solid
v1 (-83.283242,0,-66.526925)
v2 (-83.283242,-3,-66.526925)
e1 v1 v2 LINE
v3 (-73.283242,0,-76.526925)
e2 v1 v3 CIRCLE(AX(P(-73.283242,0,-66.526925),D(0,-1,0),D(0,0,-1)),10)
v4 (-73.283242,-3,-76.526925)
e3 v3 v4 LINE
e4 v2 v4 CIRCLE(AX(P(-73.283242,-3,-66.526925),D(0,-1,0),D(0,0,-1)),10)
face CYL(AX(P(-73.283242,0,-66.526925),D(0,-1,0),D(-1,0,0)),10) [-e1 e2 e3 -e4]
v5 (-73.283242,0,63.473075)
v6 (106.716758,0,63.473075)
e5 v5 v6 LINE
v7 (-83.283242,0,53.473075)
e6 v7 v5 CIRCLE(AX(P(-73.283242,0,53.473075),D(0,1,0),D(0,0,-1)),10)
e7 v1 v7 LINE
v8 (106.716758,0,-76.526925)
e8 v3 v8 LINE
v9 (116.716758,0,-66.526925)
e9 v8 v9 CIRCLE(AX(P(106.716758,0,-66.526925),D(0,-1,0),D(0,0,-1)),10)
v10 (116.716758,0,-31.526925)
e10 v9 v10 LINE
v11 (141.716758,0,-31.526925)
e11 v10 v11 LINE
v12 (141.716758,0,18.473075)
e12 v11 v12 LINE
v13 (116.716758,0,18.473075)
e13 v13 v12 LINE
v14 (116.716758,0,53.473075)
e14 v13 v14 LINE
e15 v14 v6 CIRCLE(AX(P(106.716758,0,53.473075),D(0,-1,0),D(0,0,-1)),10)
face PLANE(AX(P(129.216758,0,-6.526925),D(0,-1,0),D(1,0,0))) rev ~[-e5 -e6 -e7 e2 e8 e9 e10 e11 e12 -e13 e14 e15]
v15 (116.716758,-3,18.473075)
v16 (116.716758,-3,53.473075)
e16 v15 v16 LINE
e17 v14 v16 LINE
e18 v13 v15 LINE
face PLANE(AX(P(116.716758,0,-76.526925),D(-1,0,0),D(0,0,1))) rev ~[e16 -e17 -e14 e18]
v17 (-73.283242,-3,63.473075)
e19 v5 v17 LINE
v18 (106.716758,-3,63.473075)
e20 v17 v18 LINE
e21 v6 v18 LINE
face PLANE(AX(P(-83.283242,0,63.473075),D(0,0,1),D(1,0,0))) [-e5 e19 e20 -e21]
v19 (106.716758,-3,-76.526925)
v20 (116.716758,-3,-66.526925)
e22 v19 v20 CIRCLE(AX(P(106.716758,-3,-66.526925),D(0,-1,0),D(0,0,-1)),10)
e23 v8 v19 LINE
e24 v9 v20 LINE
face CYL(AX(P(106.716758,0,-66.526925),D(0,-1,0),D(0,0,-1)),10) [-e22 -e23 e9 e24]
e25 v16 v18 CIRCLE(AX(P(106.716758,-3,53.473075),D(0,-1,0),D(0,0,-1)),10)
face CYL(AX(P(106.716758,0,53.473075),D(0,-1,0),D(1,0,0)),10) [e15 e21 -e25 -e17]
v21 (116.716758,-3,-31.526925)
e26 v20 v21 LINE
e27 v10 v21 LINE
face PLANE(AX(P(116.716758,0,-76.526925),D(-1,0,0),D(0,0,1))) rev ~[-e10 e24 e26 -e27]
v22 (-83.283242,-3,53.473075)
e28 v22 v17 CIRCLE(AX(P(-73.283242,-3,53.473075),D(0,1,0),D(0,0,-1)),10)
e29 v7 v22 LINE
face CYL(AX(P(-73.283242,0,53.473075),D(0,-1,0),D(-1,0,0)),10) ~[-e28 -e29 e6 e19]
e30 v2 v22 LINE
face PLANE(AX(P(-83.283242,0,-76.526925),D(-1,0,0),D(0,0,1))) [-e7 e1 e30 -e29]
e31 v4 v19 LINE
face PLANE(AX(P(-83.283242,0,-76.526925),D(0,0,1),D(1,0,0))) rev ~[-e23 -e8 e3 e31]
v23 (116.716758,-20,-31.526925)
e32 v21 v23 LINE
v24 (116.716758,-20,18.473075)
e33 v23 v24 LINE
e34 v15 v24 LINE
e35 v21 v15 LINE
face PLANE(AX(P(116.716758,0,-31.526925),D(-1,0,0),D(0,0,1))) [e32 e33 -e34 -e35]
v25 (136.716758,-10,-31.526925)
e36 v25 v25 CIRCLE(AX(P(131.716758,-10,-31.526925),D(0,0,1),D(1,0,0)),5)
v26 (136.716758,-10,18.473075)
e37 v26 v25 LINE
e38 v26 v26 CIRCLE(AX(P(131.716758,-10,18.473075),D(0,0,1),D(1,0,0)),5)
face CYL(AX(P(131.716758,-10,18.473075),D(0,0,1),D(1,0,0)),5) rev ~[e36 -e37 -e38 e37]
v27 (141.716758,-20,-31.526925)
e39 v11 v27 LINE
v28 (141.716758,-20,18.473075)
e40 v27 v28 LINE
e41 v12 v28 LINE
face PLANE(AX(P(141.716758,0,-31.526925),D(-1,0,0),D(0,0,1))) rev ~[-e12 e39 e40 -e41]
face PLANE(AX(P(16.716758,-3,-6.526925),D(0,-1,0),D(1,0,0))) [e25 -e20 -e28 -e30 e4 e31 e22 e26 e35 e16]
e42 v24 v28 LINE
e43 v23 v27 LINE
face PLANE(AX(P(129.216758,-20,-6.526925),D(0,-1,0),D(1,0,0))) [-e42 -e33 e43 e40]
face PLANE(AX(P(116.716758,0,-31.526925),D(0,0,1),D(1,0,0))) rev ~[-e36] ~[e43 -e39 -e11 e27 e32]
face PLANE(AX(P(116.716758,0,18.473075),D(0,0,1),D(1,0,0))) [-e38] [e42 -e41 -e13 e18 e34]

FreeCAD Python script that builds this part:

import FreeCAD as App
import Part
import Sketcher
from FreeCAD import Vector
Q = App.Units.Quantity


def edges_at(feature, points):
    """Names of the edges that pass closest to the given points."""
    edges = feature.Shape.Edges
    near = lambda p: min(range(len(edges)), key=lambda i: edges[i].distToShape(Part.Vertex(*p))[0])
    return sorted({f"Edge{near(p) + 1}" for p in points})

doc = App.newDocument("Part")
body = doc.addObject("PartDesign::Body", "Body")

# Sketch on XZ plane
sketch1 = body.newObject("Sketcher::SketchObject", "Sketch")
sketch1.AttachmentSupport = (doc.getObject("XZ_Plane"), [""])
sketch1.MapMode = "FlatFace"
sketch1.addGeometry(Part.LineSegment(Vector(-83, 63, 0), Vector(-83, -77, 0)), False)
sketch1.addGeometry(Part.LineSegment(Vector(-83, -77, 0), Vector(117, -77, 0)), False)
sketch1.addGeometry(Part.LineSegment(Vector(117, -77, 0), Vector(117, 63, 0)), False)
sketch1.addGeometry(Part.LineSegment(Vector(117, 63, 0), Vector(-83, 63, 0)), False)
sketch1.addConstraint(Sketcher.Constraint("Coincident", 0, 2, 1, 1))
sketch1.addConstraint(Sketcher.Constraint("Coincident", 1, 2, 2, 1))
sketch1.addConstraint(Sketcher.Constraint("Coincident", 2, 2, 3, 1))
sketch1.addConstraint(Sketcher.Constraint("Coincident", 3, 2, 0, 1))
sketch1.addConstraint(Sketcher.Constraint("Vertical", 0))
sketch1.addConstraint(Sketcher.Constraint("Horizontal", 1))
sketch1.addConstraint(Sketcher.Constraint("Vertical", 2))
sketch1.addConstraint(Sketcher.Constraint("Horizontal", 3))
sketch1.addConstraint(Sketcher.Constraint("DistanceX", 1, 1, 1, 2, Q("200 mm")))
sketch1.addConstraint(Sketcher.Constraint("DistanceY", 0, 2, 0, 1, Q("140 mm")))
sketch1.addConstraint(Sketcher.Constraint("DistanceX", 0, 2, -1, 1, Q("83.283242 mm")))
sketch1.addConstraint(Sketcher.Constraint("DistanceY", 0, 2, -1, 1, Q("76.526925 mm")))
pad1 = body.newObject("PartDesign::Pad", "Pad")
pad1.Profile = sketch1
pad1.Length = 3
doc.recompute()

fillet = body.newObject("PartDesign::Fillet", "Fillet")
fillet.Base = (pad1, edges_at(pad1, [
    (-83.283, -1.5, -76.527),
    (116.717, -1.5, 63.473),
    (116.717, -1.5, -76.527),
    (-83.283, -1.5, 63.473),
]))
fillet.Radius = 10

# Sketch on XZ plane
sketch2 = body.newObject("Sketcher::SketchObject", "Sketch001")
sketch2.AttachmentSupport = (doc.getObject("XZ_Plane"), [""])
sketch2.MapMode = "FlatFace"
sketch2.addGeometry(Part.LineSegment(Vector(117, 18, 0), Vector(117, -32, 0)), False)
sketch2.addGeometry(Part.LineSegment(Vector(117, -32, 0), Vector(142, -32, 0)), False)
sketch2.addGeometry(Part.LineSegment(Vector(142, -32, 0), Vector(142, 18, 0)), False)
sketch2.addGeometry(Part.LineSegment(Vector(142, 18, 0), Vector(117, 18, 0)), False)
sketch2.addConstraint(Sketcher.Constraint("Coincident", 0, 2, 1, 1))
sketch2.addConstraint(Sketcher.Constraint("Coincident", 1, 2, 2, 1))
sketch2.addConstraint(Sketcher.Constraint("Coincident", 2, 2, 3, 1))
sketch2.addConstraint(Sketcher.Constraint("Coincident", 3, 2, 0, 1))
sketch2.addConstraint(Sketcher.Constraint("Vertical", 0))
sketch2.addConstraint(Sketcher.Constraint("Horizontal", 1))
sketch2.addConstraint(Sketcher.Constraint("Vertical", 2))
sketch2.addConstraint(Sketcher.Constraint("Horizontal", 3))
sketch2.addConstraint(Sketcher.Constraint("DistanceX", 1, 1, 1, 2, Q("25 mm")))
sketch2.addConstraint(Sketcher.Constraint("DistanceY", 0, 2, 0, 1, Q("50 mm")))
sketch2.addConstraint(Sketcher.Constraint("DistanceX", -1, 1, 0, 2, Q("116.716758 mm")))
sketch2.addConstraint(Sketcher.Constraint("DistanceY", 0, 2, -1, 1, Q("31.526925 mm")))
pad2 = body.newObject("PartDesign::Pad", "Pad001")
pad2.Profile = sketch2
pad2.Length = 20

# Sketch on XY plane
sketch3 = body.newObject("Sketcher::SketchObject", "Sketch002")
sketch3.AttachmentSupport = (doc.getObject("XY_Plane"), [""])
sketch3.MapMode = "FlatFace"
sketch3.AttachmentOffset = App.Placement(Vector(0, 0, 18.473075), App.Rotation())
sketch3.addGeometry(Part.Circle(Vector(132, -10, 0), Vector(0, 0, 1), 5), False)
sketch3.addConstraint(Sketcher.Constraint("Diameter", 0, Q("10 mm")))
sketch3.addConstraint(Sketcher.Constraint("DistanceY", 0, 3, -1, 1, Q("10 mm")))
sketch3.addConstraint(Sketcher.Constraint("DistanceX", -1, 1, 0, 3, Q("131.716758 mm")))
pocket1 = body.newObject("PartDesign::Pocket", "Pocket")
pocket1.Profile = sketch3
pocket1.Length = 87.527208

doc.recompute()
